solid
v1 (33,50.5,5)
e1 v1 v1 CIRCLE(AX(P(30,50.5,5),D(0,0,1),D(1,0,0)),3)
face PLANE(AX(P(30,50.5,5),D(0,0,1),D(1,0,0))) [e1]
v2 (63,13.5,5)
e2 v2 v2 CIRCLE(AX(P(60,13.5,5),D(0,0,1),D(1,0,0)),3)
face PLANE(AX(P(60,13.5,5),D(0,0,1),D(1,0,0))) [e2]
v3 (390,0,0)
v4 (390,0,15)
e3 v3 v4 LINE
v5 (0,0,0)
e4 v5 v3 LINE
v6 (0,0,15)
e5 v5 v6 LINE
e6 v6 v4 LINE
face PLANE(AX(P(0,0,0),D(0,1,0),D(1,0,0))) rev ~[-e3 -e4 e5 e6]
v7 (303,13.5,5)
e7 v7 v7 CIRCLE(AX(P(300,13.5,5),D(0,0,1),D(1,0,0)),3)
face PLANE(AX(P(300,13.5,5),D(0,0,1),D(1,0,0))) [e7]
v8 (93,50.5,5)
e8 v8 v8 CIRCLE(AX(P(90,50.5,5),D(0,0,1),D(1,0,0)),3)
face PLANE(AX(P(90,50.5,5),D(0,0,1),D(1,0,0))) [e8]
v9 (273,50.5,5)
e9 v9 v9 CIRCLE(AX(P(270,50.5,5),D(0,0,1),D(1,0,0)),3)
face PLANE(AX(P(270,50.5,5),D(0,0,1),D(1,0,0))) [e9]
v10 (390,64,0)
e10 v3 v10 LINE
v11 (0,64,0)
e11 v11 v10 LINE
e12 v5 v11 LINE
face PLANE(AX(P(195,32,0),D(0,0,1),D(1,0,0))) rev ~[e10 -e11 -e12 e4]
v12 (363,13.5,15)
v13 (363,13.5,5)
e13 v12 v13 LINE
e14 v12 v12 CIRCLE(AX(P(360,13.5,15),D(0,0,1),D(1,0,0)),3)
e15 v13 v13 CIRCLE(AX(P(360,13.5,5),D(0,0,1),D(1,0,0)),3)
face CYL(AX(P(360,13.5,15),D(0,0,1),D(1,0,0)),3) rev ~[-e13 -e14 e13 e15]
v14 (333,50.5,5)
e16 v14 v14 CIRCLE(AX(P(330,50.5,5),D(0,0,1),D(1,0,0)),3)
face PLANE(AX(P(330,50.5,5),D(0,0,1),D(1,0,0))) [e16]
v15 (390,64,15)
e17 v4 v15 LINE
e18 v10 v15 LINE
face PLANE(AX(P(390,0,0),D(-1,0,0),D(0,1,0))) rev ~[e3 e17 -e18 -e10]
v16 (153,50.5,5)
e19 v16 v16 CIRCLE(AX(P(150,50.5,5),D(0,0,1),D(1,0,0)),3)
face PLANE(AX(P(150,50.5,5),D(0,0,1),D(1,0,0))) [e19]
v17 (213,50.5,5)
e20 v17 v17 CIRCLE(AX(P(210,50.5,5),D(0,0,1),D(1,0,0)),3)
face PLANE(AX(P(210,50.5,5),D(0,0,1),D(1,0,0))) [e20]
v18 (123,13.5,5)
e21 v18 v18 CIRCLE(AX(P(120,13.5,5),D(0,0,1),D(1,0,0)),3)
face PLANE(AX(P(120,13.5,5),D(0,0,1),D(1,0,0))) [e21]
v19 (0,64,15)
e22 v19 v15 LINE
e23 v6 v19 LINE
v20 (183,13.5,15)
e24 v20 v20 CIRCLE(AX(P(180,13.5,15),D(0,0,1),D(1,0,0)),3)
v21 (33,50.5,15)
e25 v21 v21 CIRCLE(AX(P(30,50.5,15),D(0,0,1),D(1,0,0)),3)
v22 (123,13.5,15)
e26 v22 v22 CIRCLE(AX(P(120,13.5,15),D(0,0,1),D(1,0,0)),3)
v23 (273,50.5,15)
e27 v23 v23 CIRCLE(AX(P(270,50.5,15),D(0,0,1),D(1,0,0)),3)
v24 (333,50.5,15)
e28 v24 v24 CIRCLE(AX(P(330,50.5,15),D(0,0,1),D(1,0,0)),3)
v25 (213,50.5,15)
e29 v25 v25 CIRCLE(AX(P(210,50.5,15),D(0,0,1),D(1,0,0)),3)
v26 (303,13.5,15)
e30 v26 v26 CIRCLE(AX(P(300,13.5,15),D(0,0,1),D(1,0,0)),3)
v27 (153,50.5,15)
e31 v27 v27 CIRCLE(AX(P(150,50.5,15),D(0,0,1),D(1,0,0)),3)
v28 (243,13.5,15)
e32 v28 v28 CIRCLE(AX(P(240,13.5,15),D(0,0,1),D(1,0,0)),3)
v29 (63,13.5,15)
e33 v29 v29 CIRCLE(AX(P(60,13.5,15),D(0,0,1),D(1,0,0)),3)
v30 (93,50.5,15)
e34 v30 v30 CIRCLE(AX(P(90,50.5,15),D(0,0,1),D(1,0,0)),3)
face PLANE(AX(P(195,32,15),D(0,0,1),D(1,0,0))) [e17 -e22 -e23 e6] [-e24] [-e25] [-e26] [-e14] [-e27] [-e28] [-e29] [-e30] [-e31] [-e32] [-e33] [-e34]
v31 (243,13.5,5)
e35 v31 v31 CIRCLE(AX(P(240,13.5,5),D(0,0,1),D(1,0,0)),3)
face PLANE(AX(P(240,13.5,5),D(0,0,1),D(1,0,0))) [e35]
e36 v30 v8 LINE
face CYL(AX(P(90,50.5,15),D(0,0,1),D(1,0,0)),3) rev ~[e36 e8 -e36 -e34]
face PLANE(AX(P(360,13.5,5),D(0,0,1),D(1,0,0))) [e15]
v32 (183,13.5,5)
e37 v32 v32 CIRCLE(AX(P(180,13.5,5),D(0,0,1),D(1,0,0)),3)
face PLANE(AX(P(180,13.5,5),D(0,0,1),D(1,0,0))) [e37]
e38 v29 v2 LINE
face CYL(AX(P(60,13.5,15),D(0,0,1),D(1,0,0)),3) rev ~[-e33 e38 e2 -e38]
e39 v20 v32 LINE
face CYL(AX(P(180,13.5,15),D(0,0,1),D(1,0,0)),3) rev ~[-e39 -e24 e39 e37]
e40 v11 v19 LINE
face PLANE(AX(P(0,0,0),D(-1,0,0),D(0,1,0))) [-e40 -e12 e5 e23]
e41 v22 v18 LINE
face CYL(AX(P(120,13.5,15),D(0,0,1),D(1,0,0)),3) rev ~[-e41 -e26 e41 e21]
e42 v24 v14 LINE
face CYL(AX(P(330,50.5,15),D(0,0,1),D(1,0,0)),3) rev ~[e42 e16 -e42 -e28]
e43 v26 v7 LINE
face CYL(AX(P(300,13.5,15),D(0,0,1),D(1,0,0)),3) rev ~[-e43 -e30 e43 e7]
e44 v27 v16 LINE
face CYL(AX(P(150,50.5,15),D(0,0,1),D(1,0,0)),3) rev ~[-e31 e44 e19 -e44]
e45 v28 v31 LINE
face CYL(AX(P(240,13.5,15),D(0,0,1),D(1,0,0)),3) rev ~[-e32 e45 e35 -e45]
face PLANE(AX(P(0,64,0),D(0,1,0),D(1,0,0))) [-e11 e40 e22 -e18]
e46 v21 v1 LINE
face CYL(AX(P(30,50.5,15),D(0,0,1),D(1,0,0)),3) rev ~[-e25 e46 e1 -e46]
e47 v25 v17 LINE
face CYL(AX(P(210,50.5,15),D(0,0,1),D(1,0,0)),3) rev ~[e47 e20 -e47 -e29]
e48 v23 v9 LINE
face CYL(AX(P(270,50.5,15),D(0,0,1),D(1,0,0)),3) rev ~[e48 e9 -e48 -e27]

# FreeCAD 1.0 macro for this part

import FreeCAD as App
import Part
import Sketcher
Q = App.Units.Quantity

doc = App.newDocument("Part")
body = doc.addObject("PartDesign::Body", "Body")

sketch1 = body.newObject("Sketcher::SketchObject", "Sketch")
sketch1.AttachmentSupport = (doc.getObject("XY_Plane"), [""])
sketch1.MapMode = "FlatFace"
sketch1.addGeometry([
    Part.LineSegment(App.Vector(0, 64, 0), App.Vector(0, 0, 0)),
    Part.LineSegment(App.Vector(0, 0, 0), App.Vector(390, 0, 0)),
    Part.LineSegment(App.Vector(390, 0, 0), App.Vector(390, 64, 0)),
    Part.LineSegment(App.Vector(390, 64, 0), App.Vector(0, 64, 0)),
], False)
sketch1.addConstraint([
    Sketcher.Constraint("Coincident", 0, 2, 1, 1),
    Sketcher.Constraint("Coincident", 1, 2, 2, 1),
    Sketcher.Constraint("Coincident", 2, 2, 3, 1),
    Sketcher.Constraint("Coincident", 3, 2, 0, 1),
    Sketcher.Constraint("Vertical", 0),
    Sketcher.Constraint("Horizontal", 1),
    Sketcher.Constraint("Vertical", 2),
    Sketcher.Constraint("Horizontal", 3),
    Sketcher.Constraint("Coincident", 0, 2, -1, 1),
    Sketcher.Constraint("DistanceX", 1, 1, 1, 2, Q("390 mm")),
    Sketcher.Constraint("DistanceY", 0, 2, 0, 1, Q("64 mm")),
])
pad1 = body.newObject("PartDesign::Pad", "Pad")
pad1.Profile = sketch1
pad1.Length = 15

sketch2 = body.newObject("Sketcher::SketchObject", "Sketch001")
sketch2.AttachmentSupport = (doc.getObject("XY_Plane"), [""])
sketch2.MapMode = "FlatFace"
sketch2.AttachmentOffset = App.Placement(App.Vector(0, 0, 15), App.Rotation())
sketch2.addGeometry([
    Part.Circle(App.Vector(30, 50.5, 0), App.Vector(0, 0, 1), 3),
    Part.Circle(App.Vector(60, 13.5, 0), App.Vector(0, 0, 1), 3),
    Part.Circle(App.Vector(90, 50.5, 0), App.Vector(0, 0, 1), 3),
    Part.Circle(App.Vector(120, 13.5, 0), App.Vector(0, 0, 1), 3),
    Part.Circle(App.Vector(150, 50.5, 0), App.Vector(0, 0, 1), 3),
    Part.Circle(App.Vector(180, 13.5, 0), App.Vector(0, 0, 1), 3),
    Part.Circle(App.Vector(210, 50.5, 0), App.Vector(0, 0, 1), 3),
    Part.Circle(App.Vector(240, 13.5, 0), App.Vector(0, 0, 1), 3),
    Part.Circle(App.Vector(270, 50.5, 0), App.Vector(0, 0, 1), 3),
    Part.Circle(App.Vector(300, 13.5, 0), App.Vector(0, 0, 1), 3),
    Part.Circle(App.Vector(330, 50.5, 0), App.Vector(0, 0, 1), 3),
    Part.Circle(App.Vector(360, 13.5, 0), App.Vector(0, 0, 1), 3),
], False)
sketch2.addConstraint([
    Sketcher.Constraint("Equal", 0, 1),
    Sketcher.Constraint("Equal", 1, 2),
    Sketcher.Constraint("Equal", 2, 3),
    Sketcher.Constraint("Equal", 3, 4),
    Sketcher.Constraint("Equal", 4, 5),
    Sketcher.Constraint("Equal", 5, 6),
    Sketcher.Constraint("Equal", 6, 7),
    Sketcher.Constraint("Equal", 7, 8),
    Sketcher.Constraint("Equal", 8, 9),
    Sketcher.Constraint("Equal", 9, 10),
    Sketcher.Constraint("Equal", 10, 11),
    Sketcher.Constraint("Horizontal", 0, 3, 2, 3),
    Sketcher.Constraint("Horizontal", 1, 3, 3, 3),
    Sketcher.Constraint("Horizontal", 2, 3, 4, 3),
    Sketcher.Constraint("Horizontal", 3, 3, 5, 3),
    Sketcher.Constraint("Horizontal", 4, 3, 6, 3),
    Sketcher.Constraint("Horizontal", 5, 3, 7, 3),
    Sketcher.Constraint("Horizontal", 6, 3, 8, 3),
    Sketcher.Constraint("Horizontal", 7, 3, 9, 3),
    Sketcher.Constraint("Horizontal", 8, 3, 10, 3),
    Sketcher.Constraint("Horizontal", 9, 3, 11, 3),
    Sketcher.Constraint("Diameter", 0, Q("6 mm")),
    Sketcher.Constraint("DistanceX", -1, 1, 0, 3, Q("30 mm")),
    Sketcher.Constraint("DistanceX", -1, 1, 1, 3, Q("60 mm")),
    Sketcher.Constraint("DistanceX", -1, 1, 2, 3, Q("90 mm")),
    Sketcher.Constraint("DistanceX", -1, 1, 3, 3, Q("120 mm")),
    Sketcher.Constraint("DistanceX", -1, 1, 4, 3, Q("150 mm")),
    Sketcher.Constraint("DistanceX", -1, 1, 5, 3, Q("180 mm")),
    Sketcher.Constraint("DistanceX", -1, 1, 6, 3, Q("210 mm")),
    Sketcher.Constraint("DistanceX", -1, 1, 7, 3, Q("240 mm")),
    Sketcher.Constraint("DistanceX", -1, 1, 8, 3, Q("270 mm")),
    Sketcher.Constraint("DistanceX", -1, 1, 9, 3, Q("300 mm")),
    Sketcher.Constraint("DistanceX", -1, 1, 10, 3, Q("330 mm")),
    Sketcher.Constraint("DistanceX", -1, 1, 11, 3, Q("360 mm")),
    Sketcher.Constraint("DistanceY", 1, 3, 0, 3, Q("37 mm")),
    Sketcher.Constraint("DistanceY", -1, 1, 0, 3, Q("50.5 mm")),
])
pocket1 = body.newObject("PartDesign::Pocket", "Pocket")
pocket1.Profile = sketch2
pocket1.Length = 10

doc.recompute()
